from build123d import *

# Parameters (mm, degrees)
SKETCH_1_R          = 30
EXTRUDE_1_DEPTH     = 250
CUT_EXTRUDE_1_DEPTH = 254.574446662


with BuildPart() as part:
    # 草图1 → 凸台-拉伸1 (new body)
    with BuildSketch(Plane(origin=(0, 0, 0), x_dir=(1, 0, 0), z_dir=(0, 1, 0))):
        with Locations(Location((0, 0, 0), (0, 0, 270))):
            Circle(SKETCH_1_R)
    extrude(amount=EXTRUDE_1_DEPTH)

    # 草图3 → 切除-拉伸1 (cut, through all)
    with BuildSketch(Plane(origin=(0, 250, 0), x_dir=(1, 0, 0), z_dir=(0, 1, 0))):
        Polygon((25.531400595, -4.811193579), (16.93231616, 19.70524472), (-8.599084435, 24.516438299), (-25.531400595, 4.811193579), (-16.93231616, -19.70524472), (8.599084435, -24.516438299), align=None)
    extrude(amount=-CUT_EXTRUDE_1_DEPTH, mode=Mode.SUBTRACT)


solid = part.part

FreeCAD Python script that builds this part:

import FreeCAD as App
import Part
import Sketcher

V = App.Vector
Q = App.Units.Quantity

doc = App.newDocument("Part")
body = doc.addObject("PartDesign::Body", "Body")

# Sketch on XZ plane
sketch1 = body.newObject("Sketcher::SketchObject", "Sketch")
sketch1.AttachmentSupport = (doc.getObject("XZ_Plane"), [""])
sketch1.MapMode = "FlatFace"
sketch1.addGeometry(Part.Circle(V(0, 0, 0), V(0, 0, 1), 30), False)
sketch1.addConstraint(Sketcher.Constraint("Coincident", 0, 3, -1, 1))
sketch1.addConstraint(Sketcher.Constraint("Diameter", 0, Q("60 mm")))
pad1 = body.newObject("PartDesign::Pad", "Pad")
pad1.Profile = sketch1
pad1.Length = 250
pad1.Reversed = True

# Sketch on XZ plane
sketch2 = body.newObject("Sketcher::SketchObject", "Sketch001")
sketch2.AttachmentSupport = (doc.getObject("XZ_Plane"), [""])
sketch2.MapMode = "FlatFace"
sketch2.AttachmentOffset = App.Placement(V(0, 0, -250), App.Rotation())
sketch2.addGeometry(Part.LineSegment(V(26, 5, 0), V(17, -20, 0)), False)
sketch2.addGeometry(Part.LineSegment(V(17, -20, 0), V(-9, -25, 0)), False)
sketch2.addGeometry(Part.LineSegment(V(-9, -25, 0), V(-26, -5, 0)), False)
sketch2.addGeometry(Part.LineSegment(V(-26, -5, 0), V(-17, 20, 0)), False)
sketch2.addGeometry(Part.LineSegment(V(-17, 20, 0), V(9, 25, 0)), False)
sketch2.addGeometry(Part.LineSegment(V(9, 25, 0), V(26, 5, 0)), False)
sketch2.addConstraint(Sketcher.Constraint("Coincident", 0, 2, 1, 1))
sketch2.addConstraint(Sketcher.Constraint("Coincident", 1, 2, 2, 1))
sketch2.addConstraint(Sketcher.Constraint("Coincident", 2, 2, 3, 1))
sketch2.addConstraint(Sketcher.Constraint("Coincident", 3, 2, 4, 1))
sketch2.addConstraint(Sketcher.Constraint("Coincident", 4, 2, 5, 1))
sketch2.addConstraint(Sketcher.Constraint("Coincident", 5, 2, 0, 1))
sketch2.addConstraint(Sketcher.Constraint("Symmetric", 0, 2, 3, 2, -1, 1))
sketch2.addConstraint(Sketcher.Constraint("Symmetric", 1, 2, 4, 2, -1, 1))
sketch2.addConstraint(Sketcher.Constraint("Symmetric", 2, 2, 5, 2, -1, 1))
sketch2.addConstraint(Sketcher.Constraint("Equal", 0, 1))
sketch2.addConstraint(Sketcher.Constraint("Equal", 1, 2))
sketch2.addConstraint(Sketcher.Constraint("DistanceX", 2, 2, -1, 1, Q("25.531401 mm")))
sketch2.addConstraint(Sketcher.Constraint("DistanceX", 1, 2, 0, 2, Q("25.531401 mm")))
sketch2.addConstraint(Sketcher.Constraint("DistanceY", 1, 2, -1, 1, Q("24.516438 mm")))
sketch2.addConstraint(Sketcher.Constraint("DistanceY", 0, 2, 2, 2, Q("14.894051 mm")))
pocket1 = body.newObject("PartDesign::Pocket", "Pocket")
pocket1.Profile = sketch2
pocket1.Type = "ThroughAll"
pocket1.Reversed = True

doc.recompute()
